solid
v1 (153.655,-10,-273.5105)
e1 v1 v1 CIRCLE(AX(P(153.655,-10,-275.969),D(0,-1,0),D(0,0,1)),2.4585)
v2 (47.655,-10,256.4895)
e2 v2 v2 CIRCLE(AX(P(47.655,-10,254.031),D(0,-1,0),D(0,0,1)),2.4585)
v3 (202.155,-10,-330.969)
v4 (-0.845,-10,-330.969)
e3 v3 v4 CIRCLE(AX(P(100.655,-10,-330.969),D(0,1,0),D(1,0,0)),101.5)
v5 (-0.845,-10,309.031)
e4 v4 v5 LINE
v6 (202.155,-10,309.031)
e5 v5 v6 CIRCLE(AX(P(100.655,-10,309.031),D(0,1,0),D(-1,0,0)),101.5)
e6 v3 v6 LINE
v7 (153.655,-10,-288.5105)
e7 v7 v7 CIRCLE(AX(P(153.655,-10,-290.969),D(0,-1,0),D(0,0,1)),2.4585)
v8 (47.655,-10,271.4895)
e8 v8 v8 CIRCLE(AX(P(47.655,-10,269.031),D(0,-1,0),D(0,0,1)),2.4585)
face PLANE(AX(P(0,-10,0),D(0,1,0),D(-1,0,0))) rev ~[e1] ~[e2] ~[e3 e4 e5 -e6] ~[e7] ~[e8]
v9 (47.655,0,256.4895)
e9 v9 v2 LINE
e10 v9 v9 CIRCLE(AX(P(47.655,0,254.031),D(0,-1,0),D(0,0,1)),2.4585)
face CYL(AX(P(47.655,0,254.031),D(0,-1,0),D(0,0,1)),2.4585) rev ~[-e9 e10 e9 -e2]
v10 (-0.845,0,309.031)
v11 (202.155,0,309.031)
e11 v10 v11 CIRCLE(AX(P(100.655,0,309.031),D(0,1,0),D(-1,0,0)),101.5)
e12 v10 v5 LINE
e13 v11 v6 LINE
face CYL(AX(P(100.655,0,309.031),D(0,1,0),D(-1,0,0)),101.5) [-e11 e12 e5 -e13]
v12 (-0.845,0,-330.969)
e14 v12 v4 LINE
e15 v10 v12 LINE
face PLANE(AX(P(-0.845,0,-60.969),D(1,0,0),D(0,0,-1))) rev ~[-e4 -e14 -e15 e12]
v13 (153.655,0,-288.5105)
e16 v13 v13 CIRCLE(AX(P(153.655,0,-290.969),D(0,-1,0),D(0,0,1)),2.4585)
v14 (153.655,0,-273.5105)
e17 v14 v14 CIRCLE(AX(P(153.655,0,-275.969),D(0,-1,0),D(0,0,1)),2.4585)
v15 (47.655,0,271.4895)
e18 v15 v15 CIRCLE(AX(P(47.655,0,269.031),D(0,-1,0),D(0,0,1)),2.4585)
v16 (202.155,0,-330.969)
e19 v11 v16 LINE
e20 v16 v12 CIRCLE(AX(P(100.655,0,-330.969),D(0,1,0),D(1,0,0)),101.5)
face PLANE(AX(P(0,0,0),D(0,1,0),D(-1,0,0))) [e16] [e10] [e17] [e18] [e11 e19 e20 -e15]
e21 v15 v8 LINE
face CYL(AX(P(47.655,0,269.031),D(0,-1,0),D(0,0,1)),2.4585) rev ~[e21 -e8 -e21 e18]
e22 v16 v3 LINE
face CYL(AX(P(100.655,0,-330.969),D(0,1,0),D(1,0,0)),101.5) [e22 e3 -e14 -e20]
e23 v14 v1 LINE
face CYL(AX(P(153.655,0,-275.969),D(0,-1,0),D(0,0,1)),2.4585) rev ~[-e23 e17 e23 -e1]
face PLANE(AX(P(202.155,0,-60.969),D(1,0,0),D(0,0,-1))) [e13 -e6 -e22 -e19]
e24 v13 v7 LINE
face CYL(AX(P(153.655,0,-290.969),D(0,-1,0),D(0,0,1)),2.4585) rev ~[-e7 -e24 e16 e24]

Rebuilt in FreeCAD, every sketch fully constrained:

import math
import FreeCAD as App
import Part
import Sketcher
Q = App.Units.Quantity

doc = App.newDocument("Part")
body = doc.addObject("PartDesign::Body", "Body")

# Sketch on XZ plane
sketch1 = doc.addObject("Sketcher::SketchObject", "Sketch")
body.addObject(sketch1)
sketch1.AttachmentSupport = (doc.XZ_Plane, [""])
sketch1.MapMode = "FlatFace"
sketch1.addGeometry([
    Part.LineSegment(App.Vector(-1, -331, 0), App.Vector(-1, 309, 0)),
    Part.ArcOfCircle(Part.Circle(App.Vector(101, 309, 0), App.Vector(0, 0, 1), 102), math.radians(0), math.radians(180)),
    Part.LineSegment(App.Vector(202, 309, 0), App.Vector(202, -331, 0)),
    Part.ArcOfCircle(Part.Circle(App.Vector(101, -331, 0), App.Vector(0, 0, 1), 102), math.radians(180), math.radians(360)),
], False)
sketch1.addConstraint([
    Sketcher.Constraint("Tangent", 0, 2, 1, 2),
    Sketcher.Constraint("Tangent", 1, 1, 2, 1),
    Sketcher.Constraint("Tangent", 2, 2, 3, 2),
    Sketcher.Constraint("Tangent", 3, 1, 0, 1),
    Sketcher.Constraint("Vertical", 0),
    Sketcher.Constraint("Vertical", 2),
    Sketcher.Constraint("Radius", 1, Q("101.5 mm")),
    Sketcher.Constraint("DistanceY", 0, 1, 0, 2, Q("640 mm")),
    Sketcher.Constraint("DistanceX", -1, 1, 1, 3, Q("100.655 mm")),
    Sketcher.Constraint("DistanceY", -1, 1, 1, 3, Q("309.031 mm")),
])
pad1 = doc.addObject("PartDesign::Pad", "Pad")
body.addObject(pad1)
pad1.Profile = sketch1
pad1.Length = 10

# Sketch on XZ plane
sketch2 = doc.addObject("Sketcher::SketchObject", "Sketch001")
body.addObject(sketch2)
sketch2.AttachmentSupport = (doc.XZ_Plane, [""])
sketch2.MapMode = "FlatFace"
sketch2.addGeometry([
    Part.Circle(App.Vector(153.7, -291, 0), App.Vector(0, 0, 1), 2.5),
    Part.Circle(App.Vector(153.7, -276, 0), App.Vector(0, 0, 1), 2.5),
], False)
sketch2.addConstraint([
    Sketcher.Constraint("Equal", 0, 1),
    Sketcher.Constraint("Vertical", 0, 3, 1, 3),
    Sketcher.Constraint("Diameter", 0, Q("4.917 mm")),
    Sketcher.Constraint("DistanceY", 0, 3, 1, 3, Q("15 mm")),
    Sketcher.Constraint("DistanceX", -1, 1, 0, 3, Q("153.655 mm")),
    Sketcher.Constraint("DistanceY", 0, 3, -1, 1, Q("290.969 mm")),
])
doc.recompute()
hole = doc.addObject("PartDesign::Hole", "Hole")
body.addObject(hole)
hole.Profile = sketch2
hole.ThreadType = "None"
hole.Diameter = 4.917
hole.DepthType = "ThroughAll"
hole.Reversed = True

# Sketch on XZ plane
sketch3 = doc.addObject("Sketcher::SketchObject", "Sketch002")
body.addObject(sketch3)
sketch3.AttachmentSupport = (doc.XZ_Plane, [""])
sketch3.MapMode = "FlatFace"
sketch3.addGeometry([
    Part.Circle(App.Vector(47.7, 254, 0), App.Vector(0, 0, 1), 2.5),
    Part.Circle(App.Vector(47.7, 269, 0), App.Vector(0, 0, 1), 2.5),
], False)
sketch3.addConstraint([
    Sketcher.Constraint("Equal", 0, 1),
    Sketcher.Constraint("Vertical", 0, 3, 1, 3),
    Sketcher.Constraint("Diameter", 0, Q("4.917 mm")),
    Sketcher.Constraint("DistanceY", 0, 3, 1, 3, Q("15 mm")),
    Sketcher.Constraint("DistanceX", -1, 1, 0, 3, Q("47.655 mm")),
    Sketcher.Constraint("DistanceY", -1, 1, 0, 3, Q("254.031 mm")),
])
doc.recompute()
hole2 = doc.addObject("PartDesign::Hole", "Hole001")
body.addObject(hole2)
hole2.Profile = sketch3
hole2.ThreadType = "None"
hole2.Diameter = 4.917
hole2.DepthType = "ThroughAll"
hole2.Reversed = True

doc.recompute()
